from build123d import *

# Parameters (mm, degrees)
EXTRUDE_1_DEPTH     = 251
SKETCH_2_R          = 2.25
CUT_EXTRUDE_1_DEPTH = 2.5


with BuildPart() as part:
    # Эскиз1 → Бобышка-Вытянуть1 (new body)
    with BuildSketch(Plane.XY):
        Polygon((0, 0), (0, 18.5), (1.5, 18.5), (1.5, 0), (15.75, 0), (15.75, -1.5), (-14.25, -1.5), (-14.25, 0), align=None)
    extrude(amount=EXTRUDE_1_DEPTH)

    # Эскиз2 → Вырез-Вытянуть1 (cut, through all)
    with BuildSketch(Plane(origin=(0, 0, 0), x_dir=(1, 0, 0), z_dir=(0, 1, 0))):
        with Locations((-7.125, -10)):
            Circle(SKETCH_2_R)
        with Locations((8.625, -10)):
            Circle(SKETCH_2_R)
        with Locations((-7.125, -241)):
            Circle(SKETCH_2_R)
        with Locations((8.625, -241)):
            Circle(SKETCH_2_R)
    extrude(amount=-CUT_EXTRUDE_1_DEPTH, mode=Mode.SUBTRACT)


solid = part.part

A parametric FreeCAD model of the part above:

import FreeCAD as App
import Part
import Sketcher

V = App.Vector

doc = App.newDocument("Part")
body = doc.addObject("PartDesign::Body", "Body")

# Sketch on XY plane
sketch1 = body.newObject("Sketcher::SketchObject", "Sketch")
sketch1.AttachmentSupport = (doc.getObject("XY_Plane"), [""])
sketch1.MapMode = "FlatFace"
sketch1.addGeometry(Part.LineSegment(V(0, 18.5, 0), V(0, 0, 0)), False)
sketch1.addGeometry(Part.LineSegment(V(0, 0, 0), V(-14.2, 0, 0)), False)
sketch1.addGeometry(Part.LineSegment(V(-14.2, 0, 0), V(-14.2, -1.5, 0)), False)
sketch1.addGeometry(Part.LineSegment(V(-14.2, -1.5, 0), V(15.8, -1.5, 0)), False)
sketch1.addGeometry(Part.LineSegment(V(15.8, -1.5, 0), V(15.8, 0, 0)), False)
sketch1.addGeometry(Part.LineSegment(V(15.8, 0, 0), V(1.5, 0, 0)), False)
sketch1.addGeometry(Part.LineSegment(V(1.5, 0, 0), V(1.5, 18.5, 0)), False)
sketch1.addGeometry(Part.LineSegment(V(1.5, 18.5, 0), V(0, 18.5, 0)), False)
sketch1.addConstraint(Sketcher.Constraint("Coincident", 0, 2, 1, 1))
sketch1.addConstraint(Sketcher.Constraint("Coincident", 1, 2, 2, 1))
sketch1.addConstraint(Sketcher.Constraint("Coincident", 2, 2, 3, 1))
sketch1.addConstraint(Sketcher.Constraint("Coincident", 3, 2, 4, 1))
sketch1.addConstraint(Sketcher.Constraint("Coincident", 4, 2, 5, 1))
sketch1.addConstraint(Sketcher.Constraint("Coincident", 5, 2, 6, 1))
sketch1.addConstraint(Sketcher.Constraint("Coincident", 6, 2, 7, 1))
sketch1.addConstraint(Sketcher.Constraint("Coincident", 7, 2, 0, 1))
sketch1.addConstraint(Sketcher.Constraint("Vertical", 0))
sketch1.addConstraint(Sketcher.Constraint("Horizontal", 1))
sketch1.addConstraint(Sketcher.Constraint("Vertical", 2))
sketch1.addConstraint(Sketcher.Constraint("Horizontal", 3))
sketch1.addConstraint(Sketcher.Constraint("Vertical", 4))
sketch1.addConstraint(Sketcher.Constraint("Horizontal", 5))
sketch1.addConstraint(Sketcher.Constraint("Vertical", 6))
sketch1.addConstraint(Sketcher.Constraint("Horizontal", 7))
sketch1.addConstraint(Sketcher.Constraint("Coincident", 0, 2, -1, 1))
sketch1.addConstraint(Sketcher.Constraint("PointOnObject", 4, 2, -1))
sketch1.addConstraint(Sketcher.Constraint("Equal", 1, 5))
sketch1.addConstraint(Sketcher.Constraint("Equal", 7, 2))
sketch1.addConstraint(Sketcher.Constraint("DistanceX", 3, 1, 3, 2, 30.0))
sketch1.addConstraint(Sketcher.Constraint("DistanceX", 7, 2, 7, 1, 1.5))
sketch1.addConstraint(Sketcher.Constraint("DistanceY", 0, 2, 0, 1, 18.5))
pad1 = body.newObject("PartDesign::Pad", "Pad")
pad1.Profile = sketch1
pad1.Length = 251

# Sketch on XZ plane
sketch2 = body.newObject("Sketcher::SketchObject", "Sketch001")
sketch2.AttachmentSupport = (doc.getObject("XZ_Plane"), [""])
sketch2.MapMode = "FlatFace"
sketch2.addGeometry(Part.Circle(V(-7.1, 10, 0), V(0, 0, 1), 2.2), False)
sketch2.addGeometry(Part.Circle(V(8.6, 10, 0), V(0, 0, 1), 2.2), False)
sketch2.addGeometry(Part.Circle(V(-7.1, 241, 0), V(0, 0, 1), 2.2), False)
sketch2.addGeometry(Part.Circle(V(8.6, 241, 0), V(0, 0, 1), 2.2), False)
sketch2.addConstraint(Sketcher.Constraint("Equal", 0, 1))
sketch2.addConstraint(Sketcher.Constraint("Equal", 1, 2))
sketch2.addConstraint(Sketcher.Constraint("Equal", 2, 3))
sketch2.addConstraint(Sketcher.Constraint("Horizontal", 0, 3, 1, 3))
sketch2.addConstraint(Sketcher.Constraint("Horizontal", 2, 3, 3, 3))
sketch2.addConstraint(Sketcher.Constraint("Vertical", 0, 3, 2, 3))
sketch2.addConstraint(Sketcher.Constraint("Vertical", 1, 3, 3, 3))
sketch2.addConstraint(Sketcher.Constraint("Diameter", 0, 4.5))
sketch2.addConstraint(Sketcher.Constraint("DistanceY", -1, 1, 0, 3, 10.0))
sketch2.addConstraint(Sketcher.Constraint("DistanceY", -1, 1, 2, 3, 241.0))
sketch2.addConstraint(Sketcher.Constraint("DistanceX", 0, 3, 1, 3, 15.75))
sketch2.addConstraint(Sketcher.Constraint("DistanceX", 0, 3, -1, 1, 7.125))
pocket1 = body.newObject("PartDesign::Pocket", "Pocket")
pocket1.Profile = sketch2
pocket1.Type = "ThroughAll"
pocket1.Reversed = True

doc.recompute()
